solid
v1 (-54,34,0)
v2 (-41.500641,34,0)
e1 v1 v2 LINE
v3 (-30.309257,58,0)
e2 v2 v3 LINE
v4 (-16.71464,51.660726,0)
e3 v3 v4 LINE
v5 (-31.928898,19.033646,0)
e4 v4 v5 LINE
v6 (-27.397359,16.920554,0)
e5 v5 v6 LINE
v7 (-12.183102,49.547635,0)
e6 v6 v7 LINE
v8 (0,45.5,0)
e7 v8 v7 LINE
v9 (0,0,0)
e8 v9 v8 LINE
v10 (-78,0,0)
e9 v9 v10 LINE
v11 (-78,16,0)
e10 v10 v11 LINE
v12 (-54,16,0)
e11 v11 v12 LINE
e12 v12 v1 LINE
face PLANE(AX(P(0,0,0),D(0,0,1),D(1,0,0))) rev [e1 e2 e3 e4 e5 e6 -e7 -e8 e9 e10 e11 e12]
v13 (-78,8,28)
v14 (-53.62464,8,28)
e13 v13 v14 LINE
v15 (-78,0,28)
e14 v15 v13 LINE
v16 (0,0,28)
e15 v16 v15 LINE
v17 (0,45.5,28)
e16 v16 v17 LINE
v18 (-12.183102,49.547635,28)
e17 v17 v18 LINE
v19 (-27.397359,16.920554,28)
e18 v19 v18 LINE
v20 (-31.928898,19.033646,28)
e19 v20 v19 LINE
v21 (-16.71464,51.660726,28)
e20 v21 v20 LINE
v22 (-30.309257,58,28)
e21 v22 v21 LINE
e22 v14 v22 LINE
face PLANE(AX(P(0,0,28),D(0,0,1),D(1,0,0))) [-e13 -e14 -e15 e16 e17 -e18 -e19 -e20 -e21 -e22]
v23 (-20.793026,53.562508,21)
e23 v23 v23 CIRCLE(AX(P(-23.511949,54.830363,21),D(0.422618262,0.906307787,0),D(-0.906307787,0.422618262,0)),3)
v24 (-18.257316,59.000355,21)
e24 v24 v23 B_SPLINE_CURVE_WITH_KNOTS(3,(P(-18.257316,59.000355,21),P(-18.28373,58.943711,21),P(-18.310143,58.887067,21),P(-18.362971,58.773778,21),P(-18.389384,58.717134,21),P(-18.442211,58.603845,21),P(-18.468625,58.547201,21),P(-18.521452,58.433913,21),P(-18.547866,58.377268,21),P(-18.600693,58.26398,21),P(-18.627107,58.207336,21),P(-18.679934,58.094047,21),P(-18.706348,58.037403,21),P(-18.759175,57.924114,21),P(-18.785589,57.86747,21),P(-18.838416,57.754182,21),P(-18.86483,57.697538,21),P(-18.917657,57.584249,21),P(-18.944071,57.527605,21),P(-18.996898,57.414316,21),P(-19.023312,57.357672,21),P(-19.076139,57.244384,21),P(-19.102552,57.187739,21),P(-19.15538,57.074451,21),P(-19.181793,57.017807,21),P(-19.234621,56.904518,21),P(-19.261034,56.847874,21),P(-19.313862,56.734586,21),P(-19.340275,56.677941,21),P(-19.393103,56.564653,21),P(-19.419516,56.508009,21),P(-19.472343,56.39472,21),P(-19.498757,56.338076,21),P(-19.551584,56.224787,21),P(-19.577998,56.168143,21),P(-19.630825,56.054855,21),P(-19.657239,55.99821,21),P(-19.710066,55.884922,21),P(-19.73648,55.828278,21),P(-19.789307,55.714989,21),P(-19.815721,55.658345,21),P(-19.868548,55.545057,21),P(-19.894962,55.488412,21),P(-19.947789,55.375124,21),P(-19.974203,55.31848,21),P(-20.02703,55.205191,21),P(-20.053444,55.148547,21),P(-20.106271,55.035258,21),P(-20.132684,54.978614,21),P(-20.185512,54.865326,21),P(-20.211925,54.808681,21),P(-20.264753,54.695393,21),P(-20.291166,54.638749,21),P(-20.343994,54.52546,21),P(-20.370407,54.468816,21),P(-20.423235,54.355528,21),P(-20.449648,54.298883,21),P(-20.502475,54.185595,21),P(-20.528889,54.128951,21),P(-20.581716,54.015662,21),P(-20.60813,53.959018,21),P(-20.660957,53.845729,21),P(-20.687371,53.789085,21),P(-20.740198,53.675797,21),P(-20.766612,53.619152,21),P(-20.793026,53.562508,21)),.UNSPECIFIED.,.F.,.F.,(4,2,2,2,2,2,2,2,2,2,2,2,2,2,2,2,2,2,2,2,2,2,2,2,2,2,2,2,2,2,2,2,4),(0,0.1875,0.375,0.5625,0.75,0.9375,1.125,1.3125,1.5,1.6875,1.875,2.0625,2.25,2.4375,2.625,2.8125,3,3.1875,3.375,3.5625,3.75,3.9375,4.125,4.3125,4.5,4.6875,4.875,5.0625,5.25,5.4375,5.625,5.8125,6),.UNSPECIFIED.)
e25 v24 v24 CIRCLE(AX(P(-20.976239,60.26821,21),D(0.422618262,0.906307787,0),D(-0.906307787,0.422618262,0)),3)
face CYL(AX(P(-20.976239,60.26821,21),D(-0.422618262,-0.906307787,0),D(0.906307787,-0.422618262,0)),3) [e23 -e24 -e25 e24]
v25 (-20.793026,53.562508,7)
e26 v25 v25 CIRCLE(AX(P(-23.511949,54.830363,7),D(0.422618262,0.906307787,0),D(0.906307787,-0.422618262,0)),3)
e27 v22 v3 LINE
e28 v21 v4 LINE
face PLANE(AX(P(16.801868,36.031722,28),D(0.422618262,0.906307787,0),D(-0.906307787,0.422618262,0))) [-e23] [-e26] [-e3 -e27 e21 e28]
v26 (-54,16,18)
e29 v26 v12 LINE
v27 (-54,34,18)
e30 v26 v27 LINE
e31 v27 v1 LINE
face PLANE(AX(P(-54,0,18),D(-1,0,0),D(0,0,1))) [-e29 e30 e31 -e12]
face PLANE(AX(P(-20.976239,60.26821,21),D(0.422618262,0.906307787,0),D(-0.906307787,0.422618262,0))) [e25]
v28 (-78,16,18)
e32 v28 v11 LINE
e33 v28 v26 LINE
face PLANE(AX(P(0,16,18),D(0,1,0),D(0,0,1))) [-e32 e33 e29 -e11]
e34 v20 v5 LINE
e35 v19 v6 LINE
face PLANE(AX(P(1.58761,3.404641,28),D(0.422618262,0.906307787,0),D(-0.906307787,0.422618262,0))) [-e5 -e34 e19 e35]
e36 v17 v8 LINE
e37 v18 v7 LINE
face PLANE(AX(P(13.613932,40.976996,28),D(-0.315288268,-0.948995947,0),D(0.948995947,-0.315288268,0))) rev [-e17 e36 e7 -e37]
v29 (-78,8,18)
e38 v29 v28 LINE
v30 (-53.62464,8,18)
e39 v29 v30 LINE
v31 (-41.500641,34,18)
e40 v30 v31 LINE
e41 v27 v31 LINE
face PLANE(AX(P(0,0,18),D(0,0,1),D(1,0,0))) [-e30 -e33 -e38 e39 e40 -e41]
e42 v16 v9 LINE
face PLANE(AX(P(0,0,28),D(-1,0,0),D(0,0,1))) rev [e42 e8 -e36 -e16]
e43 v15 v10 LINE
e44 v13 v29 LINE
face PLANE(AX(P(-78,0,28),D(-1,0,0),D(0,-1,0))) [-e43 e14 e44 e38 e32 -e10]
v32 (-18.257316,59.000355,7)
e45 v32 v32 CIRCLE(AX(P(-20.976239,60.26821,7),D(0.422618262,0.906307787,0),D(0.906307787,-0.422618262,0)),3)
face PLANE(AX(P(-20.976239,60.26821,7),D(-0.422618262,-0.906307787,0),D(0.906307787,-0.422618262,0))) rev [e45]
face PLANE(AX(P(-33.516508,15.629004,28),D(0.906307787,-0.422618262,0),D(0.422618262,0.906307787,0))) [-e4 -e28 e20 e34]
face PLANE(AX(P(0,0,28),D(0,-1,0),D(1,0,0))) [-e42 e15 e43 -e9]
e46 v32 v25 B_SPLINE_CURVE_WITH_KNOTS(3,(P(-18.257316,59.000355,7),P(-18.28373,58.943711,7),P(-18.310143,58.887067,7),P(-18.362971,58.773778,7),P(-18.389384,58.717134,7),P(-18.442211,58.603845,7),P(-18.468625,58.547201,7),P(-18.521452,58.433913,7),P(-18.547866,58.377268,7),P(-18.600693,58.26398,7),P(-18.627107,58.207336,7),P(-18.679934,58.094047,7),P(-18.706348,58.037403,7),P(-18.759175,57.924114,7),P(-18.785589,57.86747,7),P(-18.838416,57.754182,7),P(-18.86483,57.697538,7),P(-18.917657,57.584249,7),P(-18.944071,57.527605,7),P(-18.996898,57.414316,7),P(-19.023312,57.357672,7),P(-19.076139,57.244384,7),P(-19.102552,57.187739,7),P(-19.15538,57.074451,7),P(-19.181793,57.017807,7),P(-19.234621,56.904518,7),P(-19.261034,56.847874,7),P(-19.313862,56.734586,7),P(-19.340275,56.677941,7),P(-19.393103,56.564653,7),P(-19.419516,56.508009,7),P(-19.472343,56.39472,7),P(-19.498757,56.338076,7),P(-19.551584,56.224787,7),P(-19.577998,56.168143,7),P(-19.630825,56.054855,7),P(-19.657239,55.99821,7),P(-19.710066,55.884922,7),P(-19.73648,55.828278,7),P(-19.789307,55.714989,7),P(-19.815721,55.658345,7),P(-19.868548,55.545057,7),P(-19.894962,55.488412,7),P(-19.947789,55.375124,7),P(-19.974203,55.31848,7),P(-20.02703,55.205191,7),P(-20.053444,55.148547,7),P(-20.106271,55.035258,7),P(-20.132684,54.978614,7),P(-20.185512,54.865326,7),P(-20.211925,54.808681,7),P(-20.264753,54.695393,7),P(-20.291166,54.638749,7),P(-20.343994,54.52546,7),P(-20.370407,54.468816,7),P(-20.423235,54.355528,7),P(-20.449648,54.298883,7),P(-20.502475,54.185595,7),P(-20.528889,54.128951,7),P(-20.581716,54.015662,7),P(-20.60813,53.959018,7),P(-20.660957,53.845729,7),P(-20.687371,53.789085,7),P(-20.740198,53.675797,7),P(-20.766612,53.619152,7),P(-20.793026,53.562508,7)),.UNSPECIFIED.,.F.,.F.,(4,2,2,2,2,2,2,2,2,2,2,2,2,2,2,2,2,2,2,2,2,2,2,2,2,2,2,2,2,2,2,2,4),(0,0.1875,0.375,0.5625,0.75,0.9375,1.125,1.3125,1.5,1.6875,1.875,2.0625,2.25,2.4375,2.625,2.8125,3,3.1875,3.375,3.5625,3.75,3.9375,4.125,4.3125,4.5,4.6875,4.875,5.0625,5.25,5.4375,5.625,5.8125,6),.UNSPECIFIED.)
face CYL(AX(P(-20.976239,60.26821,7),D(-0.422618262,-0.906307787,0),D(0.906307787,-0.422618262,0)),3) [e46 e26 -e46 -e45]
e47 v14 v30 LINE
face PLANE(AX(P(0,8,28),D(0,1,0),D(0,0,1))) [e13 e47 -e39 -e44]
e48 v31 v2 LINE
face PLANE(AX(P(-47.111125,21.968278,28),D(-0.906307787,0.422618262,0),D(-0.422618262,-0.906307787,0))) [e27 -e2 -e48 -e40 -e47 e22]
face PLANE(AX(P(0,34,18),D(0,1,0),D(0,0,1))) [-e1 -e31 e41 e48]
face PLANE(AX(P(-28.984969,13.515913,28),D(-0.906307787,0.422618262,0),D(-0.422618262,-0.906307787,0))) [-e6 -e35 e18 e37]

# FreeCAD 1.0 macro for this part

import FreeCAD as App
import Part
import Sketcher

V = App.Vector
Q = App.Units.Quantity

doc = App.newDocument("Part")
body = doc.addObject("PartDesign::Body", "Body")

# Sketch on XY plane
sketch1 = doc.addObject("Sketcher::SketchObject", "Sketch")
body.addObject(sketch1)
sketch1.AttachmentSupport = (doc.XY_Plane, [""])
sketch1.MapMode = "FlatFace"
sketch1.addGeometry([
    Part.LineSegment(V(-78, 0, 0), V(0, 0, 0)),  # 0
    Part.LineSegment(V(0, 0, 0), V(0, 45.5, 0)),  # 1
    Part.LineSegment(V(0, 45.5, 0), V(-12.2, 49.5, 0)),  # 2
    Part.LineSegment(V(-12.2, 49.5, 0), V(-27.4, 16.9, 0)),  # 3
    Part.LineSegment(V(-27.4, 16.9, 0), V(-31.9, 19, 0)),  # 4
    Part.LineSegment(V(-31.9, 19, 0), V(-16.7, 51.7, 0)),  # 5
    Part.LineSegment(V(-16.7, 51.7, 0), V(-30.3, 58, 0)),  # 6
    Part.LineSegment(V(-30.3, 58, 0), V(-41.5, 34, 0)),  # 7
    Part.LineSegment(V(-41.5, 34, 0), V(-53.6, 8, 0)),  # 8
    Part.LineSegment(V(-53.6, 8, 0), V(-78, 8, 0)),  # 9
    Part.LineSegment(V(-78, 8, 0), V(-78, 0, 0)),  # 10
], False)
sketch1.addConstraint([
    Sketcher.Constraint("Coincident", 0, 2, 1, 1),
    Sketcher.Constraint("Coincident", 1, 2, 2, 1),
    Sketcher.Constraint("Coincident", 2, 2, 3, 1),
    Sketcher.Constraint("Coincident", 3, 2, 4, 1),
    Sketcher.Constraint("Coincident", 4, 2, 5, 1),
    Sketcher.Constraint("Coincident", 5, 2, 6, 1),
    Sketcher.Constraint("Coincident", 6, 2, 7, 1),
    Sketcher.Constraint("Coincident", 7, 2, 8, 1),
    Sketcher.Constraint("Coincident", 8, 2, 9, 1),
    Sketcher.Constraint("Coincident", 9, 2, 10, 1),
    Sketcher.Constraint("Coincident", 10, 2, 0, 1),
    Sketcher.Constraint("Horizontal", 0),
    Sketcher.Constraint("Vertical", 1),
    Sketcher.Constraint("Horizontal", 9),
    Sketcher.Constraint("Vertical", 10),
    Sketcher.Constraint("Coincident", 0, 2, -1, 1),
    Sketcher.Constraint("Perpendicular", 3, 4),
    Sketcher.Constraint("Perpendicular", 4, 5),
    Sketcher.Constraint("Perpendicular", 5, 6),
    Sketcher.Constraint("Perpendicular", 6, 7),
    Sketcher.Constraint("Parallel", 7, 8),
    Sketcher.Constraint("Equal", 3, 5),
    Sketcher.Constraint("DistanceX", 0, 1, 0, 2, 78.0),
    Sketcher.Constraint("DistanceY", 10, 2, 10, 1, 8.0),
    Sketcher.Constraint("Angle", 3, Q("-115 deg")),
    Sketcher.Constraint("Distance", 3, 36.0),
    Sketcher.Constraint("Distance", 4, 5.0),
    Sketcher.Constraint("Distance", 6, 15.0),
    Sketcher.Constraint("DistanceY", 1, 1, 1, 2, 45.5),
    Sketcher.Constraint("DistanceY", -1, 1, 6, 2, 58.0),
    Sketcher.Constraint("DistanceY", -1, 1, 7, 2, 34.0),
    Sketcher.Constraint("DistanceX", 9, 2, 9, 1, 24.37536),
])
pad1 = doc.addObject("PartDesign::Pad", "Pad")
body.addObject(pad1)
pad1.Profile = sketch1
pad1.Length = 28

# Sketch on XY plane
sketch2 = doc.addObject("Sketcher::SketchObject", "Sketch001")
body.addObject(sketch2)
sketch2.AttachmentSupport = (doc.XY_Plane, [""])
sketch2.MapMode = "FlatFace"
sketch2.addGeometry([
    Part.LineSegment(V(-78, 16, 0), V(-78, 8, 0)),  # 0
    Part.LineSegment(V(-78, 8, 0), V(-54, 8, 0)),  # 1
    Part.LineSegment(V(-54, 8, 0), V(-42, 34, 0)),  # 2
    Part.LineSegment(V(-42, 34, 0), V(-54, 34, 0)),  # 3
    Part.LineSegment(V(-54, 34, 0), V(-54, 16, 0)),  # 4
    Part.LineSegment(V(-54, 16, 0), V(-78, 16, 0)),  # 5
], False)
sketch2.addConstraint([
    Sketcher.Constraint("Coincident", 0, 2, 1, 1),
    Sketcher.Constraint("Coincident", 1, 2, 2, 1),
    Sketcher.Constraint("Coincident", 2, 2, 3, 1),
    Sketcher.Constraint("Coincident", 3, 2, 4, 1),
    Sketcher.Constraint("Coincident", 4, 2, 5, 1),
    Sketcher.Constraint("Coincident", 5, 2, 0, 1),
    Sketcher.Constraint("Vertical", 0),
    Sketcher.Constraint("Horizontal", 1),
    Sketcher.Constraint("Horizontal", 3),
    Sketcher.Constraint("Vertical", 4),
    Sketcher.Constraint("Horizontal", 5),
    Sketcher.Constraint("DistanceX", 5, 2, 5, 1, 24.0),
    Sketcher.Constraint("DistanceY", 0, 2, 0, 1, 8.0),
    Sketcher.Constraint("DistanceY", 4, 2, 4, 1, 18.0),
    Sketcher.Constraint("Angle", 2, Q("65 deg")),
    Sketcher.Constraint("DistanceX", 0, 2, -1, 1, 78.0),
    Sketcher.Constraint("DistanceY", -1, 1, 0, 2, 8.0),
    Sketcher.Constraint("DistanceX", 1, 1, 1, 2, 24.37536),
])
pad2 = doc.addObject("PartDesign::Pad", "Pad001")
body.addObject(pad2)
pad2.Profile = sketch2
pad2.Length = 18

# Sketch on an angled plane
sketch3 = doc.addObject("Sketcher::SketchObject", "Sketch002")
body.addObject(sketch3)
sketch3.Placement = App.Placement(V(16.801868, 36.031722, 0), App.Rotation(V(0.906307787, -0.422618262, 0), V(0, 0, -1), V(0.422618262, 0.906307787, 0), "ZXY"))
sketch3.addGeometry([
    Part.Circle(V(-44.5, -21, 0), V(0, 0, 1), 3),
    Part.Circle(V(-44.5, -7, 0), V(0, 0, 1), 3),
], False)
sketch3.addConstraint([
    Sketcher.Constraint("Equal", 0, 1),
    Sketcher.Constraint("Vertical", 0, 3, 1, 3),
    Sketcher.Constraint("Diameter", 0, 6.0),
    Sketcher.Constraint("DistanceY", 0, 3, -1, 1, 21.0),
    Sketcher.Constraint("DistanceY", 1, 3, -1, 1, 7.0),
    Sketcher.Constraint("DistanceX", 0, 3, -1, 1, 44.481375),
])
pad3 = doc.addObject("PartDesign::Pad", "Pad002")
body.addObject(pad3)
pad3.Profile = sketch3
pad3.Length = 6

doc.recompute()
